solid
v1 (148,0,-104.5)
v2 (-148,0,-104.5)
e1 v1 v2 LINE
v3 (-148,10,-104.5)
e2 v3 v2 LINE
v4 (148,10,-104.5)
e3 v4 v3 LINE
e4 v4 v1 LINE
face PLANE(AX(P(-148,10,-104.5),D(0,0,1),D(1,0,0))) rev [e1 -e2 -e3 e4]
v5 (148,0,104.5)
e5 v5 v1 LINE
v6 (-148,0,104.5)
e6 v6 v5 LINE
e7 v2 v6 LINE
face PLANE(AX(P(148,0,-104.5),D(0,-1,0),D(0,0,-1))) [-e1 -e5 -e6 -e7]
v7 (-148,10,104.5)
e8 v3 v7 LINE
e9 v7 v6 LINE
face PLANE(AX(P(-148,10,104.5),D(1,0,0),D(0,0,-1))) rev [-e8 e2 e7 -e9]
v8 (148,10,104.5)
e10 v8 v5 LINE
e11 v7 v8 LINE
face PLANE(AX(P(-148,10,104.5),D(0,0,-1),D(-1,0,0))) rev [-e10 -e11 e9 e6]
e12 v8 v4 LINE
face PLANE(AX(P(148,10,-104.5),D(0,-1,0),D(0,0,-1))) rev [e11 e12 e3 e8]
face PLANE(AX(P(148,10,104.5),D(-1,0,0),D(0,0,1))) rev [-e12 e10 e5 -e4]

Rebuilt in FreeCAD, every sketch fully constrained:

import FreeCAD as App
import Part
import Sketcher
from FreeCAD import Vector

doc = App.newDocument("Part")
body = doc.addObject("PartDesign::Body", "Body")

# Sketch on XZ plane
sketch1 = body.newObject("Sketcher::SketchObject", "Sketch")
sketch1.AttachmentSupport = (doc.getObject("XZ_Plane"), [""])
sketch1.MapMode = "FlatFace"
sketch1.addGeometry([
    Part.LineSegment(Vector(-148, -104, 0), Vector(-148, 104, 0)),
    Part.LineSegment(Vector(-148, 104, 0), Vector(148, 104, 0)),
    Part.LineSegment(Vector(148, 104, 0), Vector(148, -104, 0)),
    Part.LineSegment(Vector(148, -104, 0), Vector(-148, -104, 0)),
], False)
sketch1.addConstraint([
    Sketcher.Constraint("Coincident", 0, 2, 1, 1),
    Sketcher.Constraint("Coincident", 1, 2, 2, 1),
    Sketcher.Constraint("Coincident", 2, 2, 3, 1),
    Sketcher.Constraint("Coincident", 3, 2, 0, 1),
    Sketcher.Constraint("Vertical", 0),
    Sketcher.Constraint("Horizontal", 1),
    Sketcher.Constraint("Vertical", 2),
    Sketcher.Constraint("Horizontal", 3),
    Sketcher.Constraint("Symmetric", 0, 2, 2, 2, -1, 1),
    Sketcher.Constraint("DistanceX", 1, 1, 1, 2, 296.0),
    Sketcher.Constraint("DistanceY", 0, 1, 0, 2, 209.0),
])
pad1 = body.newObject("PartDesign::Pad", "Pad")
pad1.Profile = sketch1
pad1.Length = 10
pad1.Reversed = True

doc.recompute()
